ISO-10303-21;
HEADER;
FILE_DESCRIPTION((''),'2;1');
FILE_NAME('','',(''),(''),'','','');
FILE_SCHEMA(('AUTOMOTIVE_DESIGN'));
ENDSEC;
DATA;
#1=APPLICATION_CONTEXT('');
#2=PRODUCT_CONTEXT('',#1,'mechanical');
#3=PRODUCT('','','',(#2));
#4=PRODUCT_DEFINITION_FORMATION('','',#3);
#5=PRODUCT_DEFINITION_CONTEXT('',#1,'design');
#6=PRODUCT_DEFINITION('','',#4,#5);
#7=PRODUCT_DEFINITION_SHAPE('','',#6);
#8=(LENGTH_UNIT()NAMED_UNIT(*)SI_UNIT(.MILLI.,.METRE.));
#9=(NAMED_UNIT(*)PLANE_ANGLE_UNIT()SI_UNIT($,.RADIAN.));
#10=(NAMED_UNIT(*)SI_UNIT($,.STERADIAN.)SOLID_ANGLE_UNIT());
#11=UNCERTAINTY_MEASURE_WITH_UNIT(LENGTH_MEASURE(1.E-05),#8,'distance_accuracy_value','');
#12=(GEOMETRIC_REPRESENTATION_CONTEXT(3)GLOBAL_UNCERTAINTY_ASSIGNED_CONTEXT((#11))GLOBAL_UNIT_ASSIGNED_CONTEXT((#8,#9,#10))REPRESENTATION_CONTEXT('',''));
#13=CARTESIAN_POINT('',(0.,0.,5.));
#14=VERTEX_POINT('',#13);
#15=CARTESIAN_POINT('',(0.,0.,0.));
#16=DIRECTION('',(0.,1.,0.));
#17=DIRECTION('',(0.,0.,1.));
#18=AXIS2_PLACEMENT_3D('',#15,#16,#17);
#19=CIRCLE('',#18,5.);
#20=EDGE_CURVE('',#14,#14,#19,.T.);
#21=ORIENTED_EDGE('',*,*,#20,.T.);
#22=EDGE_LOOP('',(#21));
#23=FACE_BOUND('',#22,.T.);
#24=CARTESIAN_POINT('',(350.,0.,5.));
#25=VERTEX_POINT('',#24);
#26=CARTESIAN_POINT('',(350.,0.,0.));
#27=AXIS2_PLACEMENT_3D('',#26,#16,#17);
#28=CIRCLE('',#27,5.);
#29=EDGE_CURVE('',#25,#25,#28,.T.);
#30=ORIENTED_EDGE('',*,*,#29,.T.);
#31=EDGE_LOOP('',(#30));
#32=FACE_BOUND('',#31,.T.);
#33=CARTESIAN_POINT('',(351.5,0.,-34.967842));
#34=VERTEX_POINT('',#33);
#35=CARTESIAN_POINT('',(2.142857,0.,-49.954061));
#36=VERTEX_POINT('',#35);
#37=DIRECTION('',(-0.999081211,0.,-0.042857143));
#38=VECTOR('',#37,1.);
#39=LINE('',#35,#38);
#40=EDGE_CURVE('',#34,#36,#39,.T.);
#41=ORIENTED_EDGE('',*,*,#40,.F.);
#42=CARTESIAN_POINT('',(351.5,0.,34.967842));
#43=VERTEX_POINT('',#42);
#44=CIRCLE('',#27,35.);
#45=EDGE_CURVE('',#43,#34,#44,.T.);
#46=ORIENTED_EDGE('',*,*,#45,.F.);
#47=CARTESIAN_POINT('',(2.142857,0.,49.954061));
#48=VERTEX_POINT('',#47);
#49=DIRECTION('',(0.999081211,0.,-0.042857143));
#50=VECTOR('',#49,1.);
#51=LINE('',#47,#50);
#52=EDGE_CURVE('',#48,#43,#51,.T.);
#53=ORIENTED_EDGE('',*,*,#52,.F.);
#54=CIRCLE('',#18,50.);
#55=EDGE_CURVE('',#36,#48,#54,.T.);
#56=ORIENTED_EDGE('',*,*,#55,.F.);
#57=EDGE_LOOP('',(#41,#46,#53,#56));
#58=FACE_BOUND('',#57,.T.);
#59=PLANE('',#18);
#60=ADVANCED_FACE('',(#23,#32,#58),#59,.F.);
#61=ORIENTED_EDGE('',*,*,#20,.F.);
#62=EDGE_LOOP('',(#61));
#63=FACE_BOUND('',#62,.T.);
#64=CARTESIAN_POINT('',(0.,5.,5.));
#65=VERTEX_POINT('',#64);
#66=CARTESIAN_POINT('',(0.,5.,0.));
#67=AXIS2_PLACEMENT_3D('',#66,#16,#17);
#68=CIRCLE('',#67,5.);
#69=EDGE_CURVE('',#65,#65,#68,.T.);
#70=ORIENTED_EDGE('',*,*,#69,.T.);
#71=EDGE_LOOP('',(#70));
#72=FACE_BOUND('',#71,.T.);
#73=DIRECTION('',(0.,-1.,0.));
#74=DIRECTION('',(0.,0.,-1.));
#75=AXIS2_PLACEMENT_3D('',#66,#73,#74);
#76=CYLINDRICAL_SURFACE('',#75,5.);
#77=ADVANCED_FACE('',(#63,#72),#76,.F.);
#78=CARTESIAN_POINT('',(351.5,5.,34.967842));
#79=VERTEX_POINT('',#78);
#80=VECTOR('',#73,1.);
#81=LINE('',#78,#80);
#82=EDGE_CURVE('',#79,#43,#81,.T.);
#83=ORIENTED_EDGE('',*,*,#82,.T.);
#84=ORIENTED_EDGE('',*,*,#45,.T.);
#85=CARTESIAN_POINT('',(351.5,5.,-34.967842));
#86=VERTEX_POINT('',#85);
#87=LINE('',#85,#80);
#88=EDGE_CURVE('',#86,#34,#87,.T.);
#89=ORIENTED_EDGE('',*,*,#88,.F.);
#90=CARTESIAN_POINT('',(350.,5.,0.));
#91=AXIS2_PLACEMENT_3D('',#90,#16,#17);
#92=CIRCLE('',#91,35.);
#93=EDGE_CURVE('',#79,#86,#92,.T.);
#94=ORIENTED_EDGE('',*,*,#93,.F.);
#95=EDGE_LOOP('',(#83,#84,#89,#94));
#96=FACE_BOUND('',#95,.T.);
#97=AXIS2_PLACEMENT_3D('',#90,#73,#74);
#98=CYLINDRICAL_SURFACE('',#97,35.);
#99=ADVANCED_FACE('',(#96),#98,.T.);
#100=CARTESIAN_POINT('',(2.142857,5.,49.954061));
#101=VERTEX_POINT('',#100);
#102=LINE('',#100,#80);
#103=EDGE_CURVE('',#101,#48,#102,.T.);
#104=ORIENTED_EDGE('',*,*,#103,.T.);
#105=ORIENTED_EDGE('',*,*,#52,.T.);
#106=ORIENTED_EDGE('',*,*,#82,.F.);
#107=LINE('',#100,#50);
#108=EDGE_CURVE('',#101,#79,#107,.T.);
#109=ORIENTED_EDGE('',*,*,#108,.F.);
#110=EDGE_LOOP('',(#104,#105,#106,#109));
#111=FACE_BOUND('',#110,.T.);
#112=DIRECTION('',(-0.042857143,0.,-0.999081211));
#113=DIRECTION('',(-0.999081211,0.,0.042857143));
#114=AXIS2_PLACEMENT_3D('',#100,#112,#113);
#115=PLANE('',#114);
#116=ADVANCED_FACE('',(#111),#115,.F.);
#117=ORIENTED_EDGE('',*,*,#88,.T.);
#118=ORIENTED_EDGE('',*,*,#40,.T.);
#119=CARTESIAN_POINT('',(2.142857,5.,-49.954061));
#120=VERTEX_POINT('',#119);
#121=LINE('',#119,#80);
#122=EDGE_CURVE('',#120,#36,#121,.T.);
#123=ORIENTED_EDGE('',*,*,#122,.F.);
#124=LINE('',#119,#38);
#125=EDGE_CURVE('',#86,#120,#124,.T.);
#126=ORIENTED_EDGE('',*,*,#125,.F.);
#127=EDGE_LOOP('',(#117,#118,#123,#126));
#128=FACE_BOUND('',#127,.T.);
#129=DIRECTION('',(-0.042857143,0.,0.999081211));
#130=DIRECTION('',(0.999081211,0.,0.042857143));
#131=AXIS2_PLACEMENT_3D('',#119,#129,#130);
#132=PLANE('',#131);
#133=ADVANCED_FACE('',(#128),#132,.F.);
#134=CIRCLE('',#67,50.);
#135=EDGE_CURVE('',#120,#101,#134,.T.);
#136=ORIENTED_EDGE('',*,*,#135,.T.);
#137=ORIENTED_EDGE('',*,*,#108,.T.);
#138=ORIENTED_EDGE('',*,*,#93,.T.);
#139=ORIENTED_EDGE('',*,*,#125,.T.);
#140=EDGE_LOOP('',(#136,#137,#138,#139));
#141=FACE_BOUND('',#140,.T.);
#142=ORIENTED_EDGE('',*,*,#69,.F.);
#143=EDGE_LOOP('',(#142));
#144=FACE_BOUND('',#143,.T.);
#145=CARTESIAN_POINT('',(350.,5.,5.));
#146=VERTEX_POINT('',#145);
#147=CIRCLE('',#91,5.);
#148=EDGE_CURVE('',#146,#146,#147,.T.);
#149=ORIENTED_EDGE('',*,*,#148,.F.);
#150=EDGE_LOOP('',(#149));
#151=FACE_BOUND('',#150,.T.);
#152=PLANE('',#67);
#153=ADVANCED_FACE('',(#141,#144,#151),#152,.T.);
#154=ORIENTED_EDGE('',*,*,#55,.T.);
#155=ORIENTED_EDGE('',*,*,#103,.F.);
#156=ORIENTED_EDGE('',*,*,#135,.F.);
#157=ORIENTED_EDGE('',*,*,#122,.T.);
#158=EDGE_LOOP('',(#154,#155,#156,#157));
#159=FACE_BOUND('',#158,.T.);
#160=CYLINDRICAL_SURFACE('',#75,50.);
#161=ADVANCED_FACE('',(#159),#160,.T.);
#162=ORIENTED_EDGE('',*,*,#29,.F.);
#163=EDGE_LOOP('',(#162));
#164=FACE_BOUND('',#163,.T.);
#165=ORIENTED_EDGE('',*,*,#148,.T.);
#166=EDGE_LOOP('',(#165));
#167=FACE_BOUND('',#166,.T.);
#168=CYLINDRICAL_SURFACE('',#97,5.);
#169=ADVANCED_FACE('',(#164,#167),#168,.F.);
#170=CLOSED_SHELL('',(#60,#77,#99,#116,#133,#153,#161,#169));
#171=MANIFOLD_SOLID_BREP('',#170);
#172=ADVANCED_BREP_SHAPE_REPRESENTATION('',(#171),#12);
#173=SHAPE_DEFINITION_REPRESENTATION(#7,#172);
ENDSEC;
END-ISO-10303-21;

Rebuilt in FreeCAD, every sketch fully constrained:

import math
import FreeCAD as App
import Part
import Sketcher
Q = App.Units.Quantity

doc = App.newDocument("Part")
params = doc.addObject("Spreadsheet::Sheet", "Params")
for row, (alias, value) in enumerate([
    ("sketch1_diameter", "10 mm"),
    ("sketch1_radius", "50 mm"),
    ("sketch1_radius2", "35 mm"),
    ("pad1_length", "5 mm"),
], start=1):
    params.set(f"A{row}", alias)
    params.set(f"B{row}", "=" + value)
    params.setAlias(f"B{row}", alias)

body = doc.addObject("PartDesign::Body", "Body")

sketch1 = body.newObject("Sketcher::SketchObject", "Sketch")
sketch1.AttachmentSupport = (doc.getObject("XZ_Plane"), [""])
sketch1.MapMode = "FlatFace"
sketch1.addGeometry([
    Part.LineSegment(App.Vector(352, -35, 0), App.Vector(2, -50, 0)),
    Part.ArcOfCircle(Part.Circle(App.Vector(0, 0, 0), App.Vector(0, 0, 1), 50), math.radians(88), math.radians(272)),
    Part.LineSegment(App.Vector(2, 50, 0), App.Vector(352, 35, 0)),
    Part.ArcOfCircle(Part.Circle(App.Vector(350, 0, 0), App.Vector(0, 0, 1), 35), math.radians(-88), math.radians(88)),
    Part.Circle(App.Vector(350, 0, 0), App.Vector(0, 0, 1), 5),
    Part.Circle(App.Vector(0, 0, 0), App.Vector(0, 0, 1), 5),
], False)
sketch1.addConstraint([
    Sketcher.Constraint("Tangent", 0, 2, 1, 2),
    Sketcher.Constraint("Tangent", 1, 1, 2, 1),
    Sketcher.Constraint("Tangent", 2, 2, 3, 2),
    Sketcher.Constraint("Tangent", 3, 1, 0, 1),
    Sketcher.Constraint("Coincident", 1, 3, -1, 1),
    Sketcher.Constraint("Coincident", 5, 3, -1, 1),
    Sketcher.Constraint("Coincident", 4, 3, 3, 3),
    Sketcher.Constraint("Equal", 4, 5),
    Sketcher.Constraint("PointOnObject", 3, 3, -1),
    Sketcher.Constraint("Diameter", 4, Q("10 mm")),
    Sketcher.Constraint("Radius", 1, Q("50 mm")),
    Sketcher.Constraint("Radius", 3, Q("35 mm")),
    Sketcher.Constraint("DistanceX", -1, 1, 3, 3, Q("350 mm")),
])
sketch1.setExpression("Constraints[9]", "Params.sketch1_diameter")
sketch1.setExpression("Constraints[10]", "Params.sketch1_radius")
sketch1.setExpression("Constraints[11]", "Params.sketch1_radius2")
pad1 = body.newObject("PartDesign::Pad", "Pad")
pad1.Profile = sketch1
pad1.setExpression("Length", "Params.pad1_length")
pad1.Reversed = True

doc.recompute()
